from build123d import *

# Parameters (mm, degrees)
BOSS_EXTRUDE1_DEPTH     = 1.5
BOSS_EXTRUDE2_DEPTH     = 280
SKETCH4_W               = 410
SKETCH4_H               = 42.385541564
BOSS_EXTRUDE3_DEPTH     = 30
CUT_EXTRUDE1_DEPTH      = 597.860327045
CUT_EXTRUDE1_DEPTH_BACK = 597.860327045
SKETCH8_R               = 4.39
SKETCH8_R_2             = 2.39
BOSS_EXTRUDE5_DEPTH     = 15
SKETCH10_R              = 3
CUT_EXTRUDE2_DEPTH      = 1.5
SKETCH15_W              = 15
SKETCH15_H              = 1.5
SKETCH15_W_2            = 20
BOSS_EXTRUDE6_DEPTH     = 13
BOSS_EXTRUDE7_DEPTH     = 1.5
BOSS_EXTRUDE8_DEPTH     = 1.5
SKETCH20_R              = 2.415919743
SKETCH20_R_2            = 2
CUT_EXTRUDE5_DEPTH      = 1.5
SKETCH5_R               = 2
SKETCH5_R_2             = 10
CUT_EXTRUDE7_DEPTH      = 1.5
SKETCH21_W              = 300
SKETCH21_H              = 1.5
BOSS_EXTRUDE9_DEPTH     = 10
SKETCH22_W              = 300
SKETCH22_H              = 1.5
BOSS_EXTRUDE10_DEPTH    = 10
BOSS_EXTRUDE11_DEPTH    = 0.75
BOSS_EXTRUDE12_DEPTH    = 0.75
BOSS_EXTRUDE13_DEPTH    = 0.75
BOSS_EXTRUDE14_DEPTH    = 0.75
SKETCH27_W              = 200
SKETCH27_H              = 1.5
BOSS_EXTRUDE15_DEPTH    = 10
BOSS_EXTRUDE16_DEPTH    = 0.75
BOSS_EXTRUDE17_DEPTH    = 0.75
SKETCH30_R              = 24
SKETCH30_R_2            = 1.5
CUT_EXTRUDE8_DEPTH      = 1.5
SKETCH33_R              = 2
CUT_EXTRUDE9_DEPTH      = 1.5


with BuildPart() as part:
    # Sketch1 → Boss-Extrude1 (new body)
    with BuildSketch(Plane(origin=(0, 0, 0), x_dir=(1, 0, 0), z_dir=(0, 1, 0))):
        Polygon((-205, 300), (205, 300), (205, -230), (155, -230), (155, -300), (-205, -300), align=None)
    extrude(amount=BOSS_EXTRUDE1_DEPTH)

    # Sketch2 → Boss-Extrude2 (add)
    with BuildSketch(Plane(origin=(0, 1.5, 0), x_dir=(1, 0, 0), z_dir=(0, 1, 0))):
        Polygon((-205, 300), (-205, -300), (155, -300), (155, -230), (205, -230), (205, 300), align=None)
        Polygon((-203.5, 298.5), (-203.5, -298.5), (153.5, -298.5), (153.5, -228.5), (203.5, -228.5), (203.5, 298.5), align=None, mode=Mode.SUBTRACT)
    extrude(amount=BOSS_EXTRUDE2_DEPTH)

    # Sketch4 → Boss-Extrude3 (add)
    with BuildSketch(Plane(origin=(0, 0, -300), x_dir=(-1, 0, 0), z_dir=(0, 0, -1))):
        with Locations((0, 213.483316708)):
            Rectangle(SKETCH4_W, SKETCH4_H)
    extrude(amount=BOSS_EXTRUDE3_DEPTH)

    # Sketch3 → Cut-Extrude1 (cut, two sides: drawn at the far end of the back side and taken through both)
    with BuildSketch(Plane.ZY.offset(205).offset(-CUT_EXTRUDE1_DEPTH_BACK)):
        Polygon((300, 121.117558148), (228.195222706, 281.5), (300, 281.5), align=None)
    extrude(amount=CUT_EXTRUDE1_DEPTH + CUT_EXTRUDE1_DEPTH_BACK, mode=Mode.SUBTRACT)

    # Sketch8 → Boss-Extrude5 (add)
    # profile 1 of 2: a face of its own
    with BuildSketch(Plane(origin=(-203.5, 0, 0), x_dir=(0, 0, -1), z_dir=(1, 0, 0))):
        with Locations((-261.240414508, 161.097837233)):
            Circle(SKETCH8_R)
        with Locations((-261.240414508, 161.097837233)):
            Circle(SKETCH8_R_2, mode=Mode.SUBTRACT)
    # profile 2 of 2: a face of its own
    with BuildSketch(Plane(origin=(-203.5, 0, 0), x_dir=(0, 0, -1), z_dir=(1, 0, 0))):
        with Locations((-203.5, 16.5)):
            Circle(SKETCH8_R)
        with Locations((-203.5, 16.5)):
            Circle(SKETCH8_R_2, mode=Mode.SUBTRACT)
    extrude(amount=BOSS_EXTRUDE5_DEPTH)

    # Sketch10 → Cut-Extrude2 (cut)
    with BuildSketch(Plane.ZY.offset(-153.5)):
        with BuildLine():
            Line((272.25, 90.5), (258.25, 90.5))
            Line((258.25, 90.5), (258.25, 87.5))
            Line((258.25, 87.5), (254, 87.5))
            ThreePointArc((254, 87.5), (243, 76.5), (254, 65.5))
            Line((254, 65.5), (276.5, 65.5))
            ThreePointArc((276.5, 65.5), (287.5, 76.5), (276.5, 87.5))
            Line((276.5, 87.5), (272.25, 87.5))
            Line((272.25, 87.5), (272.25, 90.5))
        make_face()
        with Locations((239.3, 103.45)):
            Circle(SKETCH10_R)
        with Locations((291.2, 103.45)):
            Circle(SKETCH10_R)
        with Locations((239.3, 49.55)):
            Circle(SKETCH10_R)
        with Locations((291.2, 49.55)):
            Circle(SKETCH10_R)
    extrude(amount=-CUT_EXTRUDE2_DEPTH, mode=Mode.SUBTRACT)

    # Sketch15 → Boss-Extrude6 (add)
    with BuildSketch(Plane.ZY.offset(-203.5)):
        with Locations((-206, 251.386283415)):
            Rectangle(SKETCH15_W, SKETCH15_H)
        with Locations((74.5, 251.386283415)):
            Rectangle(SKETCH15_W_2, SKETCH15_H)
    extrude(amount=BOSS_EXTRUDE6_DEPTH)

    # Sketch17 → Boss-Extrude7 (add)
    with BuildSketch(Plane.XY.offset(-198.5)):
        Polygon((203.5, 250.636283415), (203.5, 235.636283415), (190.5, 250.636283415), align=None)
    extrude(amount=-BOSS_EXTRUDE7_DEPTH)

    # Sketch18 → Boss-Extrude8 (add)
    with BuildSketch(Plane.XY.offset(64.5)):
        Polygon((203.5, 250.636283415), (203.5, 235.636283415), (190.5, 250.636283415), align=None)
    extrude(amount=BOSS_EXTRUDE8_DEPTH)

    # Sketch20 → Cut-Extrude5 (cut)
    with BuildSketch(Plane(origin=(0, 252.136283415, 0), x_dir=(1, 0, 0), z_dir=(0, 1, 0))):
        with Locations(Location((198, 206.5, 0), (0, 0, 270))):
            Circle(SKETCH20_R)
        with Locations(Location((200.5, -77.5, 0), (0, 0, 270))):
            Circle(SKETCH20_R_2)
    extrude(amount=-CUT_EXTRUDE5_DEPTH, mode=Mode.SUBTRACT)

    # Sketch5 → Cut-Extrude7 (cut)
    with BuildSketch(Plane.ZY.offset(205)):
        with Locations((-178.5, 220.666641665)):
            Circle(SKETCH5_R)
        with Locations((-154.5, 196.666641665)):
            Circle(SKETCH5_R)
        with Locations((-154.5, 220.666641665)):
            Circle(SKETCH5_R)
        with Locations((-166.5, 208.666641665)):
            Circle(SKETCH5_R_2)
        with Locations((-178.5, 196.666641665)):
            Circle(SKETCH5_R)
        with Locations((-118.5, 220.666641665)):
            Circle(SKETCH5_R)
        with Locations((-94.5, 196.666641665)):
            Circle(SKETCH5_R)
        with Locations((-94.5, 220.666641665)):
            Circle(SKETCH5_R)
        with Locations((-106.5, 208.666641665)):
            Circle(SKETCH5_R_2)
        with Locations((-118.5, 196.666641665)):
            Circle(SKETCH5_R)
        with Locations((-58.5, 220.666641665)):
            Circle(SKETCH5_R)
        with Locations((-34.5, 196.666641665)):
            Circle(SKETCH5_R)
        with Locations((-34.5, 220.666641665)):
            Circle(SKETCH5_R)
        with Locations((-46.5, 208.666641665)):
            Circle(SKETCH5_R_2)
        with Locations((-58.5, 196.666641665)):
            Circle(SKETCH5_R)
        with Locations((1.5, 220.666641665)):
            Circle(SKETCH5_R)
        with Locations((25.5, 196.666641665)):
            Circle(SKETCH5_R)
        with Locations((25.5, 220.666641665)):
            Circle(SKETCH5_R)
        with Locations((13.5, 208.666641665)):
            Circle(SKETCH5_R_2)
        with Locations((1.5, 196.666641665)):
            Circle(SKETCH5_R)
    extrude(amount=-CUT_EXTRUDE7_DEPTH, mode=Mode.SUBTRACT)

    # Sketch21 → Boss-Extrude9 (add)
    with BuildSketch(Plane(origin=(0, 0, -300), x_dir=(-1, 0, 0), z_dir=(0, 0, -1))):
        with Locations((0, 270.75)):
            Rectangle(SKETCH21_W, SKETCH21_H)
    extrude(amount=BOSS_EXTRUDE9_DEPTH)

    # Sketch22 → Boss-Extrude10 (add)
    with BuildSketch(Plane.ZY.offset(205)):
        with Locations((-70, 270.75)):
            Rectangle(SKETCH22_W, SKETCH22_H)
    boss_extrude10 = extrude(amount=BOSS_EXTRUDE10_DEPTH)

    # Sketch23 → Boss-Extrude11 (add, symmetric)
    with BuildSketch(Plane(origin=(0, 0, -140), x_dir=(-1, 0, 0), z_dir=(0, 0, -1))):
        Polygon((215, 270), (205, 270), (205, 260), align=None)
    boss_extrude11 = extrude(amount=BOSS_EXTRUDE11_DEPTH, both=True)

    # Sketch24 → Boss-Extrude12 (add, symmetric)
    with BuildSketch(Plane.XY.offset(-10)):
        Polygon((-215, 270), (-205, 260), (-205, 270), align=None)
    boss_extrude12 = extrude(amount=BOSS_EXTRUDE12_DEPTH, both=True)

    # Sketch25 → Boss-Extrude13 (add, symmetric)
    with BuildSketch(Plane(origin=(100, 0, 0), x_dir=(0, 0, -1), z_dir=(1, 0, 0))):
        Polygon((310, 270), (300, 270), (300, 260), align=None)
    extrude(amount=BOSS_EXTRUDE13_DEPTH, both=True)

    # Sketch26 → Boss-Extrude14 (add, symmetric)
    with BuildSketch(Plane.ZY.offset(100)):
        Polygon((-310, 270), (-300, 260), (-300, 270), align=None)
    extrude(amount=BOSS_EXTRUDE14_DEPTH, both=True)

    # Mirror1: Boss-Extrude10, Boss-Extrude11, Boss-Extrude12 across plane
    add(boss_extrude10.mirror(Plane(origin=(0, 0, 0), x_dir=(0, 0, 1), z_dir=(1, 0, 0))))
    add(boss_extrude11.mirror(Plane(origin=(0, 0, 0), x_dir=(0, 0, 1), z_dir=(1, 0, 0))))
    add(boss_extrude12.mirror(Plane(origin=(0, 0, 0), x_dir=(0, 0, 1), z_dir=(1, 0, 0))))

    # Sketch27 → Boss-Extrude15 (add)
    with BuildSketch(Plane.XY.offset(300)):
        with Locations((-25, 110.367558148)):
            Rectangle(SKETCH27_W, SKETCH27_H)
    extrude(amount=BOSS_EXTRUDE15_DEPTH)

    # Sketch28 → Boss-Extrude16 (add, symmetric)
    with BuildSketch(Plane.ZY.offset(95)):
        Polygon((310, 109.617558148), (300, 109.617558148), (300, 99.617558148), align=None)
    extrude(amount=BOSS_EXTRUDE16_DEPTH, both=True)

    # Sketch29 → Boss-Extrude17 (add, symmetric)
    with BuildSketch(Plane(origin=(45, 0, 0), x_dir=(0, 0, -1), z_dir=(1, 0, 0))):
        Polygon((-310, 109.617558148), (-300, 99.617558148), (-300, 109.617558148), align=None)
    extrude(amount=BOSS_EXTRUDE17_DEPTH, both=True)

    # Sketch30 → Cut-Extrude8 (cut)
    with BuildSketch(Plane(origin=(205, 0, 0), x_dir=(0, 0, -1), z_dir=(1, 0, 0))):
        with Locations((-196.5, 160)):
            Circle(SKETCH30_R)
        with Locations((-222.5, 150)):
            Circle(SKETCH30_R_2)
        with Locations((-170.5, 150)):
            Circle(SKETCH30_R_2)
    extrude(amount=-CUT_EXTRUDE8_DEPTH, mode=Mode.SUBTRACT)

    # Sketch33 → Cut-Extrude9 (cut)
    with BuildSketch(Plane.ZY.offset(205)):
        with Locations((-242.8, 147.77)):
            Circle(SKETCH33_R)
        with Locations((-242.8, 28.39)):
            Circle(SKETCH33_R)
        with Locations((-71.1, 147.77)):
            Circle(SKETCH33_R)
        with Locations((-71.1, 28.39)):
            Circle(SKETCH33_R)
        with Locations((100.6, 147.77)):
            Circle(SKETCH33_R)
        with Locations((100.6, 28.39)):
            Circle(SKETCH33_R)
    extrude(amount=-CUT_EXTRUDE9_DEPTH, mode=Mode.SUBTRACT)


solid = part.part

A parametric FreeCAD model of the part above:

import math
import FreeCAD as App
import Part
import Sketcher

V = App.Vector

doc = App.newDocument("Part")
body = doc.addObject("PartDesign::Body", "Body")

sketch1 = body.newObject("Sketcher::SketchObject", "Sketch")
sketch1.AttachmentSupport = (doc.getObject("XZ_Plane"), [""])
sketch1.MapMode = "FlatFace"
sketch1.addGeometry([
    Part.LineSegment(V(205, -300, 0), V(-205, -300, 0)),
    Part.LineSegment(V(-205, -300, 0), V(-205, 300, 0)),
    Part.LineSegment(V(-205, 300, 0), V(155, 300, 0)),
    Part.LineSegment(V(155, 300, 0), V(155, 230, 0)),
    Part.LineSegment(V(155, 230, 0), V(205, 230, 0)),
    Part.LineSegment(V(205, 230, 0), V(205, -300, 0)),
], False)
sketch1.addConstraint([
    Sketcher.Constraint("Coincident", 0, 2, 1, 1),
    Sketcher.Constraint("Coincident", 1, 2, 2, 1),
    Sketcher.Constraint("Coincident", 2, 2, 3, 1),
    Sketcher.Constraint("Coincident", 3, 2, 4, 1),
    Sketcher.Constraint("Coincident", 4, 2, 5, 1),
    Sketcher.Constraint("Coincident", 5, 2, 0, 1),
    Sketcher.Constraint("Horizontal", 0),
    Sketcher.Constraint("Vertical", 1),
    Sketcher.Constraint("Horizontal", 2),
    Sketcher.Constraint("Vertical", 3),
    Sketcher.Constraint("Horizontal", 4),
    Sketcher.Constraint("Vertical", 5),
    Sketcher.Constraint("Symmetric", 1, 2, 5, 2, -1, 1),
    Sketcher.Constraint("DistanceX", 0, 2, 0, 1, 410.0),
    Sketcher.Constraint("DistanceX", 2, 1, 2, 2, 360.0),
    Sketcher.Constraint("DistanceY", 1, 1, 1, 2, 600.0),
    Sketcher.Constraint("DistanceY", 3, 2, 3, 1, 70.0),
])
pad1 = body.newObject("PartDesign::Pad", "Pad")
pad1.Profile = sketch1
pad1.Length = 1.5
pad1.Reversed = True

sketch2 = body.newObject("Sketcher::SketchObject", "Sketch001")
sketch2.AttachmentSupport = (doc.getObject("XZ_Plane"), [""])
sketch2.MapMode = "FlatFace"
sketch2.AttachmentOffset = App.Placement(V(0, 0, -1.5), App.Rotation())
sketch2.addGeometry([
    Part.LineSegment(V(-205, -300, 0), V(-205, 300, 0)),
    Part.LineSegment(V(-205, 300, 0), V(155, 300, 0)),
    Part.LineSegment(V(155, 300, 0), V(155, 230, 0)),
    Part.LineSegment(V(155, 230, 0), V(205, 230, 0)),
    Part.LineSegment(V(205, 230, 0), V(205, -300, 0)),
    Part.LineSegment(V(205, -300, 0), V(-205, -300, 0)),
    Part.LineSegment(V(-204, 298, 0), V(-204, -298, 0)),
    Part.LineSegment(V(-204, -298, 0), V(204, -298, 0)),
    Part.LineSegment(V(204, -298, 0), V(204, 228, 0)),
    Part.LineSegment(V(204, 228, 0), V(154, 228, 0)),
    Part.LineSegment(V(154, 228, 0), V(154, 298, 0)),
    Part.LineSegment(V(154, 298, 0), V(-204, 298, 0)),
], False)
sketch2.addConstraint([
    Sketcher.Constraint("Coincident", 0, 2, 1, 1),
    Sketcher.Constraint("Coincident", 1, 2, 2, 1),
    Sketcher.Constraint("Coincident", 2, 2, 3, 1),
    Sketcher.Constraint("Coincident", 3, 2, 4, 1),
    Sketcher.Constraint("Coincident", 4, 2, 5, 1),
    Sketcher.Constraint("Coincident", 5, 2, 0, 1),
    Sketcher.Constraint("Coincident", 6, 2, 7, 1),
    Sketcher.Constraint("Coincident", 7, 2, 8, 1),
    Sketcher.Constraint("Coincident", 8, 2, 9, 1),
    Sketcher.Constraint("Coincident", 9, 2, 10, 1),
    Sketcher.Constraint("Coincident", 10, 2, 11, 1),
    Sketcher.Constraint("Coincident", 11, 2, 6, 1),
    Sketcher.Constraint("Vertical", 0),
    Sketcher.Constraint("Horizontal", 1),
    Sketcher.Constraint("Vertical", 2),
    Sketcher.Constraint("Horizontal", 3),
    Sketcher.Constraint("Vertical", 4),
    Sketcher.Constraint("Horizontal", 5),
    Sketcher.Constraint("Vertical", 6),
    Sketcher.Constraint("Horizontal", 7),
    Sketcher.Constraint("Vertical", 8),
    Sketcher.Constraint("Horizontal", 9),
    Sketcher.Constraint("Vertical", 10),
    Sketcher.Constraint("Horizontal", 11),
    Sketcher.Constraint("Symmetric", 0, 2, 4, 2, -1, 1),
    Sketcher.Constraint("Symmetric", 7, 2, 11, 2, -1, 1),
    Sketcher.Constraint("Equal", 3, 9),
    Sketcher.Constraint("Equal", 2, 10),
    Sketcher.Constraint("DistanceX", 1, 1, 1, 2, 360.0),
    Sketcher.Constraint("DistanceX", 3, 1, 3, 2, 50.0),
    Sketcher.Constraint("DistanceX", 7, 1, 7, 2, 407.0),
    Sketcher.Constraint("DistanceY", 0, 1, 0, 2, 600.0),
    Sketcher.Constraint("DistanceY", 2, 2, 2, 1, 70.0),
    Sketcher.Constraint("DistanceY", 6, 2, 6, 1, 597.0),
])
pad2 = body.newObject("PartDesign::Pad", "Pad001")
pad2.Profile = sketch2
pad2.Length = 280
pad2.Reversed = True

sketch3 = body.newObject("Sketcher::SketchObject", "Sketch002")
sketch3.AttachmentSupport = (doc.getObject("XY_Plane"), [""])
sketch3.MapMode = "FlatFace"
sketch3.AttachmentOffset = App.Placement(V(0, 0, -300), App.Rotation())
sketch3.addGeometry([
    Part.LineSegment(V(205, 235, 0), V(205, 192, 0)),
    Part.LineSegment(V(205, 192, 0), V(-205, 192, 0)),
    Part.LineSegment(V(-205, 192, 0), V(-205, 235, 0)),
    Part.LineSegment(V(-205, 235, 0), V(205, 235, 0)),
], False)
sketch3.addConstraint([
    Sketcher.Constraint("Coincident", 0, 2, 1, 1),
    Sketcher.Constraint("Coincident", 1, 2, 2, 1),
    Sketcher.Constraint("Coincident", 2, 2, 3, 1),
    Sketcher.Constraint("Coincident", 3, 2, 0, 1),
    Sketcher.Constraint("Vertical", 0),
    Sketcher.Constraint("Horizontal", 1),
    Sketcher.Constraint("Vertical", 2),
    Sketcher.Constraint("Horizontal", 3),
    Sketcher.Constraint("DistanceX", 1, 2, 1, 1, 410.0),
    Sketcher.Constraint("DistanceX", -1, 1, 0, 2, 205.0),
    Sketcher.Constraint("DistanceY", 0, 2, 0, 1, 42.385542),
    Sketcher.Constraint("DistanceY", -1, 1, 0, 2, 192.290546),
])
pad3 = body.newObject("PartDesign::Pad", "Pad002")
pad3.Profile = sketch3
pad3.Length = 30
pad3.Reversed = True

sketch4 = body.newObject("Sketcher::SketchObject", "Sketch003")
sketch4.AttachmentSupport = (doc.getObject("YZ_Plane"), [""])
sketch4.MapMode = "FlatFace"
sketch4.AttachmentOffset = App.Placement(V(0, 0, -205), App.Rotation())
sketch4.addGeometry([
    Part.LineSegment(V(282, 228, 0), V(121, 300, 0)),
    Part.LineSegment(V(121, 300, 0), V(282, 300, 0)),
    Part.LineSegment(V(282, 300, 0), V(282, 228, 0)),
], False)
sketch4.addConstraint([
    Sketcher.Constraint("Coincident", 0, 2, 1, 1),
    Sketcher.Constraint("Coincident", 1, 2, 2, 1),
    Sketcher.Constraint("Coincident", 2, 2, 0, 1),
    Sketcher.Constraint("Horizontal", 1),
    Sketcher.Constraint("Vertical", 2),
    Sketcher.Constraint("DistanceY", -1, 1, 0, 2, 300.0),
    Sketcher.Constraint("DistanceX", -1, 1, 1, 2, 281.5),
    Sketcher.Constraint("DistanceX", 1, 1, 1, 2, 160.382442),
    Sketcher.Constraint("Distance", 0, 175.722661),
])
pocket1 = body.newObject("PartDesign::Pocket", "Pocket")
pocket1.Profile = sketch4
pocket1.Type = "ThroughAll"
pocket1.Midplane = True

sketch5 = body.newObject("Sketcher::SketchObject", "Sketch004")
sketch5.AttachmentSupport = (doc.getObject("YZ_Plane"), [""])
sketch5.MapMode = "FlatFace"
sketch5.AttachmentOffset = App.Placement(V(0, 0, -203.5), App.Rotation())
sketch5.addGeometry([
    Part.Circle(V(161.1, 261.2, 0), V(0, 0, 1), 4.4),
    Part.Circle(V(161.1, 261.2, 0), V(0, 0, 1), 2.4),
    Part.Circle(V(16.5, 203.5, 0), V(0, 0, 1), 4.4),
    Part.Circle(V(16.5, 203.5, 0), V(0, 0, 1), 2.4),
], False)
sketch5.addConstraint([
    Sketcher.Constraint("Coincident", 1, 3, 0, 3),
    Sketcher.Constraint("Coincident", 3, 3, 2, 3),
    Sketcher.Constraint("Equal", 0, 2),
    Sketcher.Constraint("Equal", 1, 3),
    Sketcher.Constraint("Diameter", 0, 8.78),
    Sketcher.Constraint("Diameter", 1, 4.78),
    Sketcher.Constraint("DistanceX", -1, 1, 2, 3, 16.5),
    Sketcher.Constraint("DistanceY", -1, 1, 2, 3, 203.5),
    Sketcher.Constraint("DistanceX", -1, 1, 0, 3, 161.097837),
    Sketcher.Constraint("DistanceY", -1, 1, 0, 3, 261.240415),
])
pad4 = body.newObject("PartDesign::Pad", "Pad003")
pad4.Profile = sketch5
pad4.Length = 15

sketch6 = body.newObject("Sketcher::SketchObject", "Sketch005")
sketch6.AttachmentSupport = (doc.getObject("YZ_Plane"), [""])
sketch6.MapMode = "FlatFace"
sketch6.AttachmentOffset = App.Placement(V(0, 0, 153.5), App.Rotation())
sketch6.addGeometry([
    Part.LineSegment(V(90.5, 272.2, 0), V(90.5, 258.2, 0)),
    Part.LineSegment(V(90.5, 258.2, 0), V(87.5, 258.2, 0)),
    Part.LineSegment(V(87.5, 258.2, 0), V(87.5, 254, 0)),
    Part.ArcOfCircle(Part.Circle(V(76.5, 254, 0), V(0, 0, 1), 11), math.radians(180), math.radians(360)),
    Part.LineSegment(V(65.5, 254, 0), V(65.5, 276.5, 0)),
    Part.ArcOfCircle(Part.Circle(V(76.5, 276.5, 0), V(0, 0, 1), 11), math.radians(0), math.radians(180)),
    Part.LineSegment(V(87.5, 276.5, 0), V(87.5, 272.2, 0)),
    Part.LineSegment(V(87.5, 272.2, 0), V(90.5, 272.2, 0)),
    Part.Circle(V(103.5, 239.3, 0), V(0, 0, 1), 3),
    Part.Circle(V(103.5, 291.2, 0), V(0, 0, 1), 3),
    Part.Circle(V(49.5, 239.3, 0), V(0, 0, 1), 3),
    Part.Circle(V(49.5, 291.2, 0), V(0, 0, 1), 3),
], False)
sketch6.addConstraint([
    Sketcher.Constraint("Coincident", 0, 2, 1, 1),
    Sketcher.Constraint("Coincident", 1, 2, 2, 1),
    Sketcher.Constraint("Tangent", 2, 2, 3, 2),
    Sketcher.Constraint("Tangent", 3, 1, 4, 1),
    Sketcher.Constraint("Tangent", 4, 2, 5, 2),
    Sketcher.Constraint("Tangent", 5, 1, 6, 1),
    Sketcher.Constraint("Coincident", 6, 2, 7, 1),
    Sketcher.Constraint("Coincident", 7, 2, 0, 1),
    Sketcher.Constraint("Vertical", 0),
    Sketcher.Constraint("Horizontal", 1),
    Sketcher.Constraint("Vertical", 2),
    Sketcher.Constraint("Vertical", 4),
    Sketcher.Constraint("Vertical", 6),
    Sketcher.Constraint("Horizontal", 7),
    Sketcher.Constraint("Equal", 3, 5),
    Sketcher.Constraint("Equal", 8, 9),
    Sketcher.Constraint("Equal", 9, 10),
    Sketcher.Constraint("Equal", 10, 11),
    Sketcher.Constraint("Horizontal", 8, 3, 10, 3),
    Sketcher.Constraint("Horizontal", 9, 3, 11, 3),
    Sketcher.Constraint("Vertical", 8, 3, 9, 3),
    Sketcher.Constraint("Vertical", 10, 3, 11, 3),
    Sketcher.Constraint("Equal", 2, 6),
    Sketcher.Constraint("Diameter", 8, 6.0),
    Sketcher.Constraint("Radius", 3, 11.0),
    Sketcher.Constraint("DistanceX", 1, 2, 1, 1, 3.0),
    Sketcher.Constraint("DistanceY", 0, 2, 0, 1, 14.0),
    Sketcher.Constraint("DistanceY", 4, 1, 4, 2, 22.5),
    Sketcher.Constraint("DistanceY", -1, 1, 3, 3, 254.0),
    Sketcher.Constraint("DistanceX", -1, 1, 3, 3, 76.5),
    Sketcher.Constraint("DistanceY", -1, 1, 8, 3, 239.3),
    Sketcher.Constraint("DistanceY", -1, 1, 9, 3, 291.2),
    Sketcher.Constraint("DistanceX", 10, 3, 8, 3, 53.9),
    Sketcher.Constraint("DistanceX", -1, 1, 8, 3, 103.45),
])
pocket2 = body.newObject("PartDesign::Pocket", "Pocket001")
pocket2.Profile = sketch6
pocket2.Length = 1.5
pocket2.Reversed = True

sketch7 = body.newObject("Sketcher::SketchObject", "Sketch006")
sketch7.AttachmentSupport = (doc.getObject("YZ_Plane"), [""])
sketch7.MapMode = "FlatFace"
sketch7.AttachmentOffset = App.Placement(V(0, 0, 203.5), App.Rotation())
sketch7.addGeometry([
    Part.LineSegment(V(252.1, -213.5, 0), V(250.6, -213.5, 0)),
    Part.LineSegment(V(250.6, -213.5, 0), V(250.6, -198.5, 0)),
    Part.LineSegment(V(250.6, -198.5, 0), V(252.1, -198.5, 0)),
    Part.LineSegment(V(252.1, -198.5, 0), V(252.1, -213.5, 0)),
    Part.LineSegment(V(252.1, 64.5, 0), V(250.6, 64.5, 0)),
    Part.LineSegment(V(250.6, 64.5, 0), V(250.6, 84.5, 0)),
    Part.LineSegment(V(250.6, 84.5, 0), V(252.1, 84.5, 0)),
    Part.LineSegment(V(252.1, 84.5, 0), V(252.1, 64.5, 0)),
], False)
sketch7.addConstraint([
    Sketcher.Constraint("Coincident", 0, 2, 1, 1),
    Sketcher.Constraint("Coincident", 1, 2, 2, 1),
    Sketcher.Constraint("Coincident", 2, 2, 3, 1),
    Sketcher.Constraint("Coincident", 3, 2, 0, 1),
    Sketcher.Constraint("Coincident", 4, 2, 5, 1),
    Sketcher.Constraint("Coincident", 5, 2, 6, 1),
    Sketcher.Constraint("Coincident", 6, 2, 7, 1),
    Sketcher.Constraint("Coincident", 7, 2, 4, 1),
    Sketcher.Constraint("Horizontal", 0),
    Sketcher.Constraint("Vertical", 1),
    Sketcher.Constraint("Horizontal", 2),
    Sketcher.Constraint("Vertical", 3),
    Sketcher.Constraint("Horizontal", 4),
    Sketcher.Constraint("Vertical", 5),
    Sketcher.Constraint("Horizontal", 6),
    Sketcher.Constraint("Vertical", 7),
    Sketcher.Constraint("Vertical", 1, 2, 4, 2),
    Sketcher.Constraint("Vertical", 3, 2, 6, 2),
    Sketcher.Constraint("DistanceY", 1, 1, 1, 2, 15.0),
    Sketcher.Constraint("DistanceY", 5, 1, 5, 2, 20.0),
    Sketcher.Constraint("DistanceX", 0, 2, 0, 1, 1.5),
    Sketcher.Constraint("DistanceY", 1, 2, 4, 2, 263.0),
    Sketcher.Constraint("DistanceY", 0, 2, -1, 1, 213.5),
    Sketcher.Constraint("DistanceX", -1, 1, 0, 2, 250.636283),
])
pad5 = body.newObject("PartDesign::Pad", "Pad004")
pad5.Profile = sketch7
pad5.Length = 13
pad5.Reversed = True

sketch8 = body.newObject("Sketcher::SketchObject", "Sketch007")
sketch8.AttachmentSupport = (doc.getObject("XY_Plane"), [""])
sketch8.MapMode = "FlatFace"
sketch8.AttachmentOffset = App.Placement(V(0, 0, -198.5), App.Rotation())
sketch8.addGeometry([
    Part.LineSegment(V(204, 236, 0), V(204, 251, 0)),
    Part.LineSegment(V(204, 251, 0), V(190, 251, 0)),
    Part.LineSegment(V(190, 251, 0), V(204, 236, 0)),
], False)
sketch8.addConstraint([
    Sketcher.Constraint("Coincident", 0, 2, 1, 1),
    Sketcher.Constraint("Coincident", 1, 2, 2, 1),
    Sketcher.Constraint("Coincident", 2, 2, 0, 1),
    Sketcher.Constraint("Vertical", 0),
    Sketcher.Constraint("Horizontal", 1),
    Sketcher.Constraint("DistanceX", 1, 2, 1, 1, 13.0),
    Sketcher.Constraint("DistanceY", 0, 1, 0, 2, 15.0),
    Sketcher.Constraint("DistanceX", -1, 1, 0, 2, 203.5),
    Sketcher.Constraint("DistanceY", -1, 1, 0, 2, 250.636283),
])
pad6 = body.newObject("PartDesign::Pad", "Pad005")
pad6.Profile = sketch8
pad6.Length = 1.5
pad6.Reversed = True

sketch9 = body.newObject("Sketcher::SketchObject", "Sketch008")
sketch9.AttachmentSupport = (doc.getObject("XY_Plane"), [""])
sketch9.MapMode = "FlatFace"
sketch9.AttachmentOffset = App.Placement(V(0, 0, 64.5), App.Rotation())
sketch9.addGeometry([
    Part.LineSegment(V(204, 236, 0), V(204, 251, 0)),
    Part.LineSegment(V(204, 251, 0), V(190, 251, 0)),
    Part.LineSegment(V(190, 251, 0), V(204, 236, 0)),
], False)
sketch9.addConstraint([
    Sketcher.Constraint("Coincident", 0, 2, 1, 1),
    Sketcher.Constraint("Coincident", 1, 2, 2, 1),
    Sketcher.Constraint("Coincident", 2, 2, 0, 1),
    Sketcher.Constraint("Vertical", 0),
    Sketcher.Constraint("Horizontal", 1),
    Sketcher.Constraint("DistanceX", 1, 2, 1, 1, 13.0),
    Sketcher.Constraint("DistanceY", 0, 1, 0, 2, 15.0),
    Sketcher.Constraint("DistanceX", -1, 1, 0, 2, 203.5),
    Sketcher.Constraint("DistanceY", -1, 1, 0, 2, 250.636283),
])
pad7 = body.newObject("PartDesign::Pad", "Pad006")
pad7.Profile = sketch9
pad7.Length = 1.5

sketch10 = body.newObject("Sketcher::SketchObject", "Sketch009")
sketch10.AttachmentSupport = (doc.getObject("XZ_Plane"), [""])
sketch10.MapMode = "FlatFace"
sketch10.AttachmentOffset = App.Placement(V(0, 0, -252.136283), App.Rotation())
sketch10.addGeometry([
    Part.Circle(V(198, -206.5, 0), V(0, 0, 1), 2.4),
    Part.Circle(V(200.5, 77.5, 0), V(0, 0, 1), 2),
], False)
sketch10.addConstraint([
    Sketcher.Constraint("Diameter", 1, 4.0),
    Sketcher.Constraint("DistanceX", -1, 1, 0, 3, 198.0),
    Sketcher.Constraint("DistanceY", 0, 3, 1, 3, 284.0),
    Sketcher.Constraint("DistanceY", 0, 3, -1, 1, 206.5),
    Sketcher.Constraint("DistanceX", -1, 1, 1, 3, 200.5),
    Sketcher.Constraint("Diameter", 0, 4.831839),
])
pocket3 = body.newObject("PartDesign::Pocket", "Pocket002")
pocket3.Profile = sketch10
pocket3.Length = 1.5
pocket3.Reversed = True

sketch11 = body.newObject("Sketcher::SketchObject", "Sketch010")
sketch11.AttachmentSupport = (doc.getObject("YZ_Plane"), [""])
sketch11.MapMode = "FlatFace"
sketch11.AttachmentOffset = App.Placement(V(0, 0, -205), App.Rotation())
sketch11.addGeometry([
    Part.Circle(V(220.7, -178.5, 0), V(0, 0, 1), 2),
    Part.Circle(V(196.7, -154.5, 0), V(0, 0, 1), 2),
    Part.Circle(V(220.7, -154.5, 0), V(0, 0, 1), 2),
    Part.Circle(V(208.7, -166.5, 0), V(0, 0, 1), 10),
    Part.Circle(V(196.7, -178.5, 0), V(0, 0, 1), 2),
    Part.Circle(V(220.7, -118.5, 0), V(0, 0, 1), 2),
    Part.Circle(V(196.7, -94.5, 0), V(0, 0, 1), 2),
    Part.Circle(V(220.7, -94.5, 0), V(0, 0, 1), 2),
    Part.Circle(V(208.7, -106.5, 0), V(0, 0, 1), 10),
    Part.Circle(V(196.7, -118.5, 0), V(0, 0, 1), 2),
    Part.Circle(V(220.7, -58.5, 0), V(0, 0, 1), 2),
    Part.Circle(V(196.7, -34.5, 0), V(0, 0, 1), 2),
    Part.Circle(V(220.7, -34.5, 0), V(0, 0, 1), 2),
    Part.Circle(V(208.7, -46.5, 0), V(0, 0, 1), 10),
    Part.Circle(V(196.7, -58.5, 0), V(0, 0, 1), 2),
    Part.Circle(V(220.7, 1.5, 0), V(0, 0, 1), 2),
    Part.Circle(V(196.7, 25.5, 0), V(0, 0, 1), 2),
    Part.Circle(V(220.7, 25.5, 0), V(0, 0, 1), 2),
    Part.Circle(V(208.7, 13.5, 0), V(0, 0, 1), 10),
    Part.Circle(V(196.7, 1.5, 0), V(0, 0, 1), 2),
], False)
sketch11.addConstraint([
    Sketcher.Constraint("Equal", 0, 1),
    Sketcher.Constraint("Equal", 1, 2),
    Sketcher.Constraint("Equal", 2, 4),
    Sketcher.Constraint("Equal", 4, 5),
    Sketcher.Constraint("Equal", 5, 6),
    Sketcher.Constraint("Equal", 6, 7),
    Sketcher.Constraint("Equal", 3, 8),
    Sketcher.Constraint("Equal", 7, 9),
    Sketcher.Constraint("Equal", 9, 10),
    Sketcher.Constraint("Equal", 10, 11),
    Sketcher.Constraint("Equal", 11, 12),
    Sketcher.Constraint("Equal", 8, 13),
    Sketcher.Constraint("Equal", 12, 14),
    Sketcher.Constraint("Equal", 14, 15),
    Sketcher.Constraint("Equal", 15, 16),
    Sketcher.Constraint("Equal", 16, 17),
    Sketcher.Constraint("Equal", 13, 18),
    Sketcher.Constraint("Equal", 17, 19),
    Sketcher.Constraint("Horizontal", 1, 3, 2, 3),
    Sketcher.Constraint("Horizontal", 0, 3, 4, 3),
    Sketcher.Constraint("Horizontal", 6, 3, 7, 3),
    Sketcher.Constraint("Horizontal", 5, 3, 9, 3),
    Sketcher.Constraint("Horizontal", 11, 3, 12, 3),
    Sketcher.Constraint("Horizontal", 10, 3, 14, 3),
    Sketcher.Constraint("Horizontal", 16, 3, 17, 3),
    Sketcher.Constraint("Horizontal", 15, 3, 19, 3),
    Sketcher.Constraint("Vertical", 0, 3, 2, 3),
    Sketcher.Constraint("Vertical", 1, 3, 4, 3),
    Sketcher.Constraint("Vertical", 2, 3, 5, 3),
    Sketcher.Constraint("Vertical", 4, 3, 6, 3),
    Sketcher.Constraint("Vertical", 5, 3, 7, 3),
    Sketcher.Constraint("Vertical", 3, 3, 8, 3),
    Sketcher.Constraint("Vertical", 6, 3, 9, 3),
    Sketcher.Constraint("Vertical", 7, 3, 10, 3),
    Sketcher.Constraint("Vertical", 9, 3, 11, 3),
    Sketcher.Constraint("Vertical", 10, 3, 12, 3),
    Sketcher.Constraint("Vertical", 8, 3, 13, 3),
    Sketcher.Constraint("Vertical", 11, 3, 14, 3),
    Sketcher.Constraint("Vertical", 12, 3, 15, 3),
    Sketcher.Constraint("Vertical", 14, 3, 16, 3),
    Sketcher.Constraint("Vertical", 15, 3, 17, 3),
    Sketcher.Constraint("Vertical", 13, 3, 18, 3),
    Sketcher.Constraint("Vertical", 16, 3, 19, 3),
    Sketcher.Constraint("Diameter", 0, 4.0),
    Sketcher.Constraint("Diameter", 3, 20.0),
    Sketcher.Constraint("DistanceX", 1, 3, 0, 3, 24.0),
    Sketcher.Constraint("DistanceY", 0, 3, 1, 3, 24.0),
    Sketcher.Constraint("DistanceX", 3, 3, 0, 3, 12.0),
    Sketcher.Constraint("DistanceY", 0, 3, 3, 3, 12.0),
    Sketcher.Constraint("DistanceY", 2, 3, 5, 3, 36.0),
    Sketcher.Constraint("DistanceY", 5, 3, 6, 3, 24.0),
    Sketcher.Constraint("DistanceY", 5, 3, 8, 3, 12.0),
    Sketcher.Constraint("DistanceY", 7, 3, 10, 3, 36.0),
    Sketcher.Constraint("DistanceY", 10, 3, 11, 3, 24.0),
    Sketcher.Constraint("DistanceY", 10, 3, 13, 3, 12.0),
    Sketcher.Constraint("DistanceY", 12, 3, 15, 3, 36.0),
    Sketcher.Constraint("DistanceY", 15, 3, 16, 3, 24.0),
    Sketcher.Constraint("DistanceY", 15, 3, 18, 3, 12.0),
    Sketcher.Constraint("DistanceY", 0, 3, -1, 1, 178.5),
    Sketcher.Constraint("DistanceX", -1, 1, 0, 3, 220.666642),
])
pocket4 = body.newObject("PartDesign::Pocket", "Pocket003")
pocket4.Profile = sketch11
pocket4.Length = 1.5
pocket4.Reversed = True

sketch12 = body.newObject("Sketcher::SketchObject", "Sketch011")
sketch12.AttachmentSupport = (doc.getObject("XY_Plane"), [""])
sketch12.MapMode = "FlatFace"
sketch12.AttachmentOffset = App.Placement(V(0, 0, -300), App.Rotation())
sketch12.addGeometry([
    Part.LineSegment(V(150, 271.5, 0), V(150, 270, 0)),
    Part.LineSegment(V(150, 270, 0), V(-150, 270, 0)),
    Part.LineSegment(V(-150, 270, 0), V(-150, 271.5, 0)),
    Part.LineSegment(V(-150, 271.5, 0), V(150, 271.5, 0)),
], False)
sketch12.addConstraint([
    Sketcher.Constraint("Coincident", 0, 2, 1, 1),
    Sketcher.Constraint("Coincident", 1, 2, 2, 1),
    Sketcher.Constraint("Coincident", 2, 2, 3, 1),
    Sketcher.Constraint("Coincident", 3, 2, 0, 1),
    Sketcher.Constraint("Vertical", 0),
    Sketcher.Constraint("Horizontal", 1),
    Sketcher.Constraint("Vertical", 2),
    Sketcher.Constraint("Horizontal", 3),
    Sketcher.Constraint("DistanceX", 1, 2, 1, 1, 300.0),
    Sketcher.Constraint("DistanceY", 0, 2, 0, 1, 1.5),
    Sketcher.Constraint("DistanceX", -1, 1, 0, 2, 150.0),
    Sketcher.Constraint("DistanceY", -1, 1, 0, 2, 270.0),
])
pad8 = body.newObject("PartDesign::Pad", "Pad007")
pad8.Profile = sketch12
pad8.Length = 10
pad8.Reversed = True

sketch13 = body.newObject("Sketcher::SketchObject", "Sketch012")
sketch13.AttachmentSupport = (doc.getObject("YZ_Plane"), [""])
sketch13.MapMode = "FlatFace"
sketch13.AttachmentOffset = App.Placement(V(0, 0, -205), App.Rotation())
sketch13.addGeometry([
    Part.LineSegment(V(271.5, -220, 0), V(270, -220, 0)),
    Part.LineSegment(V(270, -220, 0), V(270, 80, 0)),
    Part.LineSegment(V(270, 80, 0), V(271.5, 80, 0)),
    Part.LineSegment(V(271.5, 80, 0), V(271.5, -220, 0)),
], False)
sketch13.addConstraint([
    Sketcher.Constraint("Coincident", 0, 2, 1, 1),
    Sketcher.Constraint("Coincident", 1, 2, 2, 1),
    Sketcher.Constraint("Coincident", 2, 2, 3, 1),
    Sketcher.Constraint("Coincident", 3, 2, 0, 1),
    Sketcher.Constraint("Horizontal", 0),
    Sketcher.Constraint("Vertical", 1),
    Sketcher.Constraint("Horizontal", 2),
    Sketcher.Constraint("Vertical", 3),
    Sketcher.Constraint("DistanceY", 1, 1, 1, 2, 300.0),
    Sketcher.Constraint("DistanceX", 0, 2, 0, 1, 1.5),
    Sketcher.Constraint("DistanceX", -1, 1, 0, 2, 270.0),
    Sketcher.Constraint("DistanceY", 0, 2, -1, 1, 220.0),
])
pad9 = body.newObject("PartDesign::Pad", "Pad008")
pad9.Profile = sketch13
pad9.Length = 10
pad9.Reversed = True

sketch14 = body.newObject("Sketcher::SketchObject", "Sketch013")
sketch14.AttachmentSupport = (doc.getObject("XY_Plane"), [""])
sketch14.MapMode = "FlatFace"
sketch14.AttachmentOffset = App.Placement(V(0, 0, -140), App.Rotation())
sketch14.addGeometry([
    Part.LineSegment(V(-215, 270, 0), V(-205, 270, 0)),
    Part.LineSegment(V(-205, 270, 0), V(-205, 260, 0)),
    Part.LineSegment(V(-205, 260, 0), V(-215, 270, 0)),
], False)
sketch14.addConstraint([
    Sketcher.Constraint("Coincident", 0, 2, 1, 1),
    Sketcher.Constraint("Coincident", 1, 2, 2, 1),
    Sketcher.Constraint("Coincident", 2, 2, 0, 1),
    Sketcher.Constraint("Horizontal", 0),
    Sketcher.Constraint("Vertical", 1),
    Sketcher.Constraint("Equal", 0, 1),
    Sketcher.Constraint("DistanceX", 0, 1, 0, 2, 10.0),
    Sketcher.Constraint("DistanceX", 0, 2, -1, 1, 205.0),
    Sketcher.Constraint("DistanceY", -1, 1, 0, 2, 270.0),
])
pad10 = body.newObject("PartDesign::Pad", "Pad009")
pad10.Profile = sketch14
pad10.Length = 1.5
pad10.Midplane = True

sketch15 = body.newObject("Sketcher::SketchObject", "Sketch014")
sketch15.AttachmentSupport = (doc.getObject("XY_Plane"), [""])
sketch15.MapMode = "FlatFace"
sketch15.AttachmentOffset = App.Placement(V(0, 0, -10), App.Rotation())
sketch15.addGeometry([
    Part.LineSegment(V(-215, 270, 0), V(-205, 260, 0)),
    Part.LineSegment(V(-205, 260, 0), V(-205, 270, 0)),
    Part.LineSegment(V(-205, 270, 0), V(-215, 270, 0)),
], False)
sketch15.addConstraint([
    Sketcher.Constraint("Coincident", 0, 2, 1, 1),
    Sketcher.Constraint("Coincident", 1, 2, 2, 1),
    Sketcher.Constraint("Coincident", 2, 2, 0, 1),
    Sketcher.Constraint("Vertical", 1),
    Sketcher.Constraint("Horizontal", 2),
    Sketcher.Constraint("Equal", 2, 1),
    Sketcher.Constraint("DistanceX", 2, 2, 2, 1, 10.0),
    Sketcher.Constraint("DistanceX", 0, 2, -1, 1, 205.0),
    Sketcher.Constraint("DistanceY", -1, 1, 0, 2, 260.0),
])
pad11 = body.newObject("PartDesign::Pad", "Pad010")
pad11.Profile = sketch15
pad11.Length = 1.5
pad11.Midplane = True

sketch16 = body.newObject("Sketcher::SketchObject", "Sketch015")
sketch16.AttachmentSupport = (doc.getObject("YZ_Plane"), [""])
sketch16.MapMode = "FlatFace"
sketch16.AttachmentOffset = App.Placement(V(0, 0, 100), App.Rotation())
sketch16.addGeometry([
    Part.LineSegment(V(270, -310, 0), V(270, -300, 0)),
    Part.LineSegment(V(270, -300, 0), V(260, -300, 0)),
    Part.LineSegment(V(260, -300, 0), V(270, -310, 0)),
], False)
sketch16.addConstraint([
    Sketcher.Constraint("Coincident", 0, 2, 1, 1),
    Sketcher.Constraint("Coincident", 1, 2, 2, 1),
    Sketcher.Constraint("Coincident", 2, 2, 0, 1),
    Sketcher.Constraint("Vertical", 0),
    Sketcher.Constraint("Horizontal", 1),
    Sketcher.Constraint("Equal", 1, 0),
    Sketcher.Constraint("DistanceX", 1, 2, 1, 1, 10.0),
    Sketcher.Constraint("DistanceX", -1, 1, 0, 2, 270.0),
    Sketcher.Constraint("DistanceY", 0, 2, -1, 1, 300.0),
])
pad12 = body.newObject("PartDesign::Pad", "Pad011")
pad12.Profile = sketch16
pad12.Length = 1.5
pad12.Midplane = True

sketch17 = body.newObject("Sketcher::SketchObject", "Sketch016")
sketch17.AttachmentSupport = (doc.getObject("YZ_Plane"), [""])
sketch17.MapMode = "FlatFace"
sketch17.AttachmentOffset = App.Placement(V(0, 0, -100), App.Rotation())
sketch17.addGeometry([
    Part.LineSegment(V(270, -310, 0), V(260, -300, 0)),
    Part.LineSegment(V(260, -300, 0), V(270, -300, 0)),
    Part.LineSegment(V(270, -300, 0), V(270, -310, 0)),
], False)
sketch17.addConstraint([
    Sketcher.Constraint("Coincident", 0, 2, 1, 1),
    Sketcher.Constraint("Coincident", 1, 2, 2, 1),
    Sketcher.Constraint("Coincident", 2, 2, 0, 1),
    Sketcher.Constraint("Horizontal", 1),
    Sketcher.Constraint("Vertical", 2),
    Sketcher.Constraint("Equal", 1, 2),
    Sketcher.Constraint("DistanceX", 1, 1, 1, 2, 10.0),
    Sketcher.Constraint("DistanceX", -1, 1, 0, 2, 260.0),
    Sketcher.Constraint("DistanceY", 0, 2, -1, 1, 300.0),
])
pad13 = body.newObject("PartDesign::Pad", "Pad012")
pad13.Profile = sketch17
pad13.Length = 1.5
pad13.Midplane = True
doc.recompute()

mirrored = body.newObject("PartDesign::Mirrored", "Mirrored")
mirrored.Originals = [pad9, pad10, pad11]
mirrored.MirrorPlane = (doc.getObject("YZ_Plane"), [""])
body.Tip = mirrored

sketch18 = body.newObject("Sketcher::SketchObject", "Sketch017")
sketch18.AttachmentSupport = (doc.getObject("XY_Plane"), [""])
sketch18.MapMode = "FlatFace"
sketch18.AttachmentOffset = App.Placement(V(0, 0, 300), App.Rotation())
sketch18.addGeometry([
    Part.LineSegment(V(-125, 111.1, 0), V(-125, 109.6, 0)),
    Part.LineSegment(V(-125, 109.6, 0), V(75, 109.6, 0)),
    Part.LineSegment(V(75, 109.6, 0), V(75, 111.1, 0)),
    Part.LineSegment(V(75, 111.1, 0), V(-125, 111.1, 0)),
], False)
sketch18.addConstraint([
    Sketcher.Constraint("Coincident", 0, 2, 1, 1),
    Sketcher.Constraint("Coincident", 1, 2, 2, 1),
    Sketcher.Constraint("Coincident", 2, 2, 3, 1),
    Sketcher.Constraint("Coincident", 3, 2, 0, 1),
    Sketcher.Constraint("Vertical", 0),
    Sketcher.Constraint("Horizontal", 1),
    Sketcher.Constraint("Vertical", 2),
    Sketcher.Constraint("Horizontal", 3),
    Sketcher.Constraint("DistanceX", 1, 1, 1, 2, 200.0),
    Sketcher.Constraint("DistanceY", 0, 2, 0, 1, 1.5),
    Sketcher.Constraint("DistanceX", 0, 2, -1, 1, 125.0),
    Sketcher.Constraint("DistanceY", -1, 1, 0, 2, 109.617558),
])
pad14 = body.newObject("PartDesign::Pad", "Pad013")
pad14.Profile = sketch18
pad14.Length = 10

sketch19 = body.newObject("Sketcher::SketchObject", "Sketch018")
sketch19.AttachmentSupport = (doc.getObject("YZ_Plane"), [""])
sketch19.MapMode = "FlatFace"
sketch19.AttachmentOffset = App.Placement(V(0, 0, -95), App.Rotation())
sketch19.addGeometry([
    Part.LineSegment(V(110, 310, 0), V(110, 300, 0)),
    Part.LineSegment(V(110, 300, 0), V(100, 300, 0)),
    Part.LineSegment(V(100, 300, 0), V(110, 310, 0)),
], False)
sketch19.addConstraint([
    Sketcher.Constraint("Coincident", 0, 2, 1, 1),
    Sketcher.Constraint("Coincident", 1, 2, 2, 1),
    Sketcher.Constraint("Coincident", 2, 2, 0, 1),
    Sketcher.Constraint("Vertical", 0),
    Sketcher.Constraint("Horizontal", 1),
    Sketcher.Constraint("Equal", 1, 0),
    Sketcher.Constraint("DistanceX", 1, 2, 1, 1, 10.0),
    Sketcher.Constraint("DistanceY", -1, 1, 0, 2, 300.0),
    Sketcher.Constraint("DistanceX", -1, 1, 0, 2, 109.617558),
])
pad15 = body.newObject("PartDesign::Pad", "Pad014")
pad15.Profile = sketch19
pad15.Length = 1.5
pad15.Midplane = True

sketch20 = body.newObject("Sketcher::SketchObject", "Sketch019")
sketch20.AttachmentSupport = (doc.getObject("YZ_Plane"), [""])
sketch20.MapMode = "FlatFace"
sketch20.AttachmentOffset = App.Placement(V(0, 0, 45), App.Rotation())
sketch20.addGeometry([
    Part.LineSegment(V(110, 310, 0), V(100, 300, 0)),
    Part.LineSegment(V(100, 300, 0), V(110, 300, 0)),
    Part.LineSegment(V(110, 300, 0), V(110, 310, 0)),
], False)
sketch20.addConstraint([
    Sketcher.Constraint("Coincident", 0, 2, 1, 1),
    Sketcher.Constraint("Coincident", 1, 2, 2, 1),
    Sketcher.Constraint("Coincident", 2, 2, 0, 1),
    Sketcher.Constraint("Horizontal", 1),
    Sketcher.Constraint("Vertical", 2),
    Sketcher.Constraint("Equal", 1, 2),
    Sketcher.Constraint("DistanceX", 1, 1, 1, 2, 10.0),
    Sketcher.Constraint("DistanceY", -1, 1, 0, 2, 300.0),
    Sketcher.Constraint("DistanceX", -1, 1, 0, 2, 99.617558),
])
pad16 = body.newObject("PartDesign::Pad", "Pad015")
pad16.Profile = sketch20
pad16.Length = 1.5
pad16.Midplane = True

sketch21 = body.newObject("Sketcher::SketchObject", "Sketch020")
sketch21.AttachmentSupport = (doc.getObject("YZ_Plane"), [""])
sketch21.MapMode = "FlatFace"
sketch21.AttachmentOffset = App.Placement(V(0, 0, 205), App.Rotation())
sketch21.addGeometry([
    Part.Circle(V(160, 196.5, 0), V(0, 0, 1), 24),
    Part.Circle(V(150, 222.5, 0), V(0, 0, 1), 1.5),
    Part.Circle(V(150, 170.5, 0), V(0, 0, 1), 1.5),
], False)
sketch21.addConstraint([
    Sketcher.Constraint("Equal", 1, 2),
    Sketcher.Constraint("Vertical", 1, 3, 2, 3),
    Sketcher.Constraint("Diameter", 0, 48.0),
    Sketcher.Constraint("Diameter", 1, 3.0),
    Sketcher.Constraint("DistanceX", -1, 1, 0, 3, 160.0),
    Sketcher.Constraint("DistanceX", -1, 1, 1, 3, 150.0),
    Sketcher.Constraint("DistanceY", 0, 3, 1, 3, 26.0),
    Sketcher.Constraint("DistanceY", 2, 3, 0, 3, 26.0),
    Sketcher.Constraint("DistanceY", -1, 1, 0, 3, 196.5),
])
pocket5 = body.newObject("PartDesign::Pocket", "Pocket004")
pocket5.Profile = sketch21
pocket5.Length = 1.5

sketch22 = body.newObject("Sketcher::SketchObject", "Sketch021")
sketch22.AttachmentSupport = (doc.getObject("YZ_Plane"), [""])
sketch22.MapMode = "FlatFace"
sketch22.AttachmentOffset = App.Placement(V(0, 0, -205), App.Rotation())
sketch22.addGeometry([
    Part.Circle(V(147.8, -242.8, 0), V(0, 0, 1), 2),
    Part.Circle(V(28.4, -242.8, 0), V(0, 0, 1), 2),
    Part.Circle(V(147.8, -71.1, 0), V(0, 0, 1), 2),
    Part.Circle(V(28.4, -71.1, 0), V(0, 0, 1), 2),
    Part.Circle(V(147.8, 100.6, 0), V(0, 0, 1), 2),
    Part.Circle(V(28.4, 100.6, 0), V(0, 0, 1), 2),
], False)
sketch22.addConstraint([
    Sketcher.Constraint("Equal", 0, 1),
    Sketcher.Constraint("Equal", 1, 2),
    Sketcher.Constraint("Equal", 2, 3),
    Sketcher.Constraint("Equal", 3, 4),
    Sketcher.Constraint("Equal", 4, 5),
    Sketcher.Constraint("Horizontal", 0, 3, 1, 3),
    Sketcher.Constraint("Horizontal", 2, 3, 3, 3),
    Sketcher.Constraint("Horizontal", 4, 3, 5, 3),
    Sketcher.Constraint("Vertical", 0, 3, 2, 3),
    Sketcher.Constraint("Vertical", 1, 3, 3, 3),
    Sketcher.Constraint("Vertical", 2, 3, 4, 3),
    Sketcher.Constraint("Vertical", 3, 3, 5, 3),
    Sketcher.Constraint("Diameter", 0, 4.0),
    Sketcher.Constraint("DistanceY", 0, 3, -1, 1, 242.8),
    Sketcher.Constraint("DistanceY", 2, 3, -1, 1, 71.1),
    Sketcher.Constraint("DistanceY", -1, 1, 4, 3, 100.6),
    Sketcher.Constraint("DistanceX", -1, 1, 0, 3, 147.77),
    Sketcher.Constraint("DistanceX", -1, 1, 1, 3, 28.39),
])
pocket6 = body.newObject("PartDesign::Pocket", "Pocket005")
pocket6.Profile = sketch22
pocket6.Length = 1.5
pocket6.Reversed = True

doc.recompute()
